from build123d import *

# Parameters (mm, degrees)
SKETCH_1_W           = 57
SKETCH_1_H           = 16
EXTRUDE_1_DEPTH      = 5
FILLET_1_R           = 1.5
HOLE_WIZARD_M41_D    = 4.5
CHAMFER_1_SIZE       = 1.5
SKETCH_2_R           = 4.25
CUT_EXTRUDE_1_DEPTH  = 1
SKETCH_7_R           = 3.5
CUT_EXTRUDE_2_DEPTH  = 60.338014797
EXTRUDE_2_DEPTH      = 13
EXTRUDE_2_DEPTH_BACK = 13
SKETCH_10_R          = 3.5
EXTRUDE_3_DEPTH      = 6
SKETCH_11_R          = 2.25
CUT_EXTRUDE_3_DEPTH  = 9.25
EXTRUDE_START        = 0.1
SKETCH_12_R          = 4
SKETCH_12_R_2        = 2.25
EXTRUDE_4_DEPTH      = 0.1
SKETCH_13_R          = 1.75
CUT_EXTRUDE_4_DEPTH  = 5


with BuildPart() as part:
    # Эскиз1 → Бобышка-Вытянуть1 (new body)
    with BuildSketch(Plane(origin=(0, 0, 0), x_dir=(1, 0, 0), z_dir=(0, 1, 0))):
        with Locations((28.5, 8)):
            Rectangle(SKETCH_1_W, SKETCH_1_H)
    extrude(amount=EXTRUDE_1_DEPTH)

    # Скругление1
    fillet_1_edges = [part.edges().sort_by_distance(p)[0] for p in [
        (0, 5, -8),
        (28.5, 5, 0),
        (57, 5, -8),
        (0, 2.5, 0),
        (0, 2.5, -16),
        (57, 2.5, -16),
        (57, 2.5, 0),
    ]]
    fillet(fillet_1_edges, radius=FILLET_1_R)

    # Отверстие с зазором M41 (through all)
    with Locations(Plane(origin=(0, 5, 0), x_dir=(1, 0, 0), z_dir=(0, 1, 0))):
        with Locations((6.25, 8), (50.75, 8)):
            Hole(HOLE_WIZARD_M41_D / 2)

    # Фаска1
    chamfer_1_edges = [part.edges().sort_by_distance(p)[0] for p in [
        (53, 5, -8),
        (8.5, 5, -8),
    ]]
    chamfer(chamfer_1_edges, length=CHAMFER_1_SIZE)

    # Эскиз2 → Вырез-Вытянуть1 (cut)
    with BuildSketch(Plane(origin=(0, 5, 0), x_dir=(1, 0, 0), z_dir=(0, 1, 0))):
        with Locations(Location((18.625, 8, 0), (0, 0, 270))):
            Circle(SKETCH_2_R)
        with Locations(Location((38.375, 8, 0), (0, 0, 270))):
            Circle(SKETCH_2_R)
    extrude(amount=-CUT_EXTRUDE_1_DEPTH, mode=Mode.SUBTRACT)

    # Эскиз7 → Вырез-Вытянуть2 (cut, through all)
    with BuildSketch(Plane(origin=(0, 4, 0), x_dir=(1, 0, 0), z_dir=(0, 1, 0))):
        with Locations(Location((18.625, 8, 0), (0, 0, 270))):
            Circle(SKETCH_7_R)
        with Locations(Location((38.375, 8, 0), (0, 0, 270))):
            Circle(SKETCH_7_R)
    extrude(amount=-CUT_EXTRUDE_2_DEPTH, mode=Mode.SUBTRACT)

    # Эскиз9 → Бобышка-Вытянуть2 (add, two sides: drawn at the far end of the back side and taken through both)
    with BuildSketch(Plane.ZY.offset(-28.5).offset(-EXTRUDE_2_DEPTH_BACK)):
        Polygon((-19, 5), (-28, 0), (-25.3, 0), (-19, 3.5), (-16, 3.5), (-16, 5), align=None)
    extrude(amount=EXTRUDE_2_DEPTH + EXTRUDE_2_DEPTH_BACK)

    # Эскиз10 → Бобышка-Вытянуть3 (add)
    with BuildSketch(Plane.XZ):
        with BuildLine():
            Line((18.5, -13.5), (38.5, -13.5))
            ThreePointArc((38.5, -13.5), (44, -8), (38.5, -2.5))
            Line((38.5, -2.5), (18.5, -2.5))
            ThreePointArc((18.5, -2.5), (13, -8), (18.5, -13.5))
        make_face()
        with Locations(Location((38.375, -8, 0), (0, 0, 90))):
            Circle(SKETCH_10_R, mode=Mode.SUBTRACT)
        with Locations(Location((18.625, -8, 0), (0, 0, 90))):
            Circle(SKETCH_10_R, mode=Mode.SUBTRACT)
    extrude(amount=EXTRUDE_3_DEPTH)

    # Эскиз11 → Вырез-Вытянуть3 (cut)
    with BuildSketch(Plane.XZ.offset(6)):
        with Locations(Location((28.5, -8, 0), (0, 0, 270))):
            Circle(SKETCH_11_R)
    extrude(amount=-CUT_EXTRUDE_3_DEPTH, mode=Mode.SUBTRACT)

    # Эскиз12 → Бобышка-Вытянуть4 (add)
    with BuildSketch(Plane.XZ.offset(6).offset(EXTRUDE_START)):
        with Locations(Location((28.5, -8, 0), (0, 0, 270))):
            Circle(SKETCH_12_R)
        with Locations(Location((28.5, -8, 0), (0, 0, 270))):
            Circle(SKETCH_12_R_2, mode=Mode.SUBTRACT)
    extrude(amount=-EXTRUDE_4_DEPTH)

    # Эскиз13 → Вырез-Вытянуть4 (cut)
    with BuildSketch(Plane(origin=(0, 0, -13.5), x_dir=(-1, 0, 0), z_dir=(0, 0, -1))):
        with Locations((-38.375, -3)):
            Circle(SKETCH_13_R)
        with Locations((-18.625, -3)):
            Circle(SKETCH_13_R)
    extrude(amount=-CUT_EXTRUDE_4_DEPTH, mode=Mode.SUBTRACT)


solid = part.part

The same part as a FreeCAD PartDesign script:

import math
import FreeCAD as App
import Part
import Sketcher
from FreeCAD import Vector


def edges_at(feature, points):
    """Names of the edges that pass closest to the given points."""
    edges = feature.Shape.Edges
    near = lambda p: min(range(len(edges)), key=lambda i: edges[i].distToShape(Part.Vertex(*p))[0])
    return sorted({f"Edge{near(p) + 1}" for p in points})


def add_polygon(sketch, points):
    """Adds a closed chain of lines whose ends are joined by coincident constraints."""
    first, n = sketch.GeometryCount, len(points)
    for a, b in zip(points, points[1:] + points[:1]):
        sketch.addGeometry(Part.LineSegment(App.Vector(*a, 0), App.Vector(*b, 0)), False)
    for i in range(n):
        sketch.addConstraint(Sketcher.Constraint("Coincident", first + i, 2, first + (i + 1) % n, 1))

doc = App.newDocument("Part")
params = doc.addObject("Spreadsheet::Sheet", "Params")
for row, (alias, value) in enumerate([
    ("sketch1_width", "57 mm"),
    ("sketch1_height", "16 mm"),
    ("pad1_length", "5 mm"),
    ("fillet_radius", "1.5 mm"),
    ("sketch2_diameter", "4.5 mm"),
    ("hole_diameter", "4.5 mm"),
    ("chamfer_size", "1.5 mm"),
    ("sketch3_diameter", "8.5 mm"),
    ("pocket1_length", "1 mm"),
    ("sketch4_diameter", "7 mm"),
    ("sketch5_height", "3 mm"),
    ("sketch5_width", "1.5 mm"),
    ("sketch5_height2", "2.7 mm"),
    ("pad2_length", "13 mm"),
    ("pad2_length2", "13 mm"),
    ("sketch6_diameter", "7 mm"),
    ("sketch6_radius", "5.5 mm"),
    ("sketch6_width", "20 mm"),
    ("pad3_length", "6 mm"),
    ("sketch7_diameter", "4.5 mm"),
    ("pocket3_length", "9.25 mm"),
    ("sketch8_diameter", "8 mm"),
    ("sketch8_diameter2", "4.5 mm"),
    ("pad4_length", "0.1 mm"),
    ("sketch9_diameter", "3.5 mm"),
    ("pocket4_length", "5 mm"),
], start=1):
    params.set(f"A{row}", alias)
    params.set(f"B{row}", "=" + value)
    params.setAlias(f"B{row}", alias)

body = doc.addObject("PartDesign::Body", "Body")

# Sketch on XZ plane
sketch1 = doc.addObject("Sketcher::SketchObject", "Sketch")
body.addObject(sketch1)
sketch1.AttachmentSupport = (doc.XZ_Plane, [""])
sketch1.MapMode = "FlatFace"
add_polygon(sketch1, [(0, -16), (0, 0), (57, 0), (57, -16)])  # lines 0-3
sketch1.addConstraint([
    Sketcher.Constraint("Vertical", 0),
    Sketcher.Constraint("Horizontal", 1),
    Sketcher.Constraint("Vertical", 2),
    Sketcher.Constraint("Horizontal", 3),
    Sketcher.Constraint("Coincident", 0, 2, -1, 1),
    Sketcher.Constraint("DistanceX", 1, 1, 1, 2, 57.0),
    Sketcher.Constraint("DistanceY", 0, 1, 0, 2, 16.0),
])
sketch1.setExpression("Constraints[9]", "Params.sketch1_width")
sketch1.setExpression("Constraints[10]", "Params.sketch1_height")
pad1 = doc.addObject("PartDesign::Pad", "Pad")
body.addObject(pad1)
pad1.Profile = sketch1
pad1.setExpression("Length", "Params.pad1_length")
pad1.Reversed = True
doc.recompute()

fillet = doc.addObject("PartDesign::Fillet", "Fillet")
body.addObject(fillet)
fillet.Base = (pad1, edges_at(pad1, [
    (0, 5, -8),
    (28.5, 5, 0),
    (57, 5, -8),
    (0, 2.5, 0),
    (0, 2.5, -16),
    (57, 2.5, -16),
    (57, 2.5, 0),
]))
fillet.setExpression("Radius", "Params.fillet_radius")

# Sketch on XZ plane
sketch2 = doc.addObject("Sketcher::SketchObject", "Sketch001")
body.addObject(sketch2)
sketch2.AttachmentSupport = (doc.XZ_Plane, [""])
sketch2.MapMode = "FlatFace"
sketch2.AttachmentOffset = App.Placement(Vector(0, 0, -5), App.Rotation())
sketch2.addGeometry([
    Part.Circle(Vector(6.2, -8, 0), Vector(0, 0, 1), 2.2),
    Part.Circle(Vector(50.8, -8, 0), Vector(0, 0, 1), 2.2),
], False)
sketch2.addConstraint([
    Sketcher.Constraint("Equal", 0, 1),
    Sketcher.Constraint("Horizontal", 0, 3, 1, 3),
    Sketcher.Constraint("Diameter", 0, 4.5),
    Sketcher.Constraint("DistanceY", 0, 3, -1, 1, 8.0),
    Sketcher.Constraint("DistanceX", 0, 3, 1, 3, 44.5),
    Sketcher.Constraint("DistanceX", -1, 1, 0, 3, 6.25),
])
sketch2.setExpression("Constraints[2]", "Params.sketch2_diameter")
doc.recompute()
hole = doc.addObject("PartDesign::Hole", "Hole")
body.addObject(hole)
hole.Profile = sketch2
hole.ThreadType = "None"
hole.setExpression("Diameter", "Params.hole_diameter")
hole.DepthType = "ThroughAll"
hole.Reversed = True
doc.recompute()

chamfer = doc.addObject("PartDesign::Chamfer", "Chamfer")
body.addObject(chamfer)
chamfer.Base = (hole, edges_at(hole, [(53, 5, -8), (8.5, 5, -8)]))
chamfer.setExpression("Size", "Params.chamfer_size")

# Sketch on XZ plane
sketch3 = doc.addObject("Sketcher::SketchObject", "Sketch002")
body.addObject(sketch3)
sketch3.AttachmentSupport = (doc.XZ_Plane, [""])
sketch3.MapMode = "FlatFace"
sketch3.AttachmentOffset = App.Placement(Vector(0, 0, -5), App.Rotation())
sketch3.addGeometry([
    Part.Circle(Vector(18.6, -8, 0), Vector(0, 0, 1), 4.2),
    Part.Circle(Vector(38.4, -8, 0), Vector(0, 0, 1), 4.2),
], False)
sketch3.addConstraint([
    Sketcher.Constraint("Equal", 0, 1),
    Sketcher.Constraint("Horizontal", 0, 3, 1, 3),
    Sketcher.Constraint("Diameter", 0, 8.5),
    Sketcher.Constraint("DistanceY", 0, 3, -1, 1, 8.0),
    Sketcher.Constraint("DistanceX", 0, 3, 1, 3, 19.75),
    Sketcher.Constraint("DistanceX", -1, 1, 0, 3, 18.625),
])
sketch3.setExpression("Constraints[2]", "Params.sketch3_diameter")
pocket1 = doc.addObject("PartDesign::Pocket", "Pocket")
body.addObject(pocket1)
pocket1.Profile = sketch3
pocket1.setExpression("Length", "Params.pocket1_length")
pocket1.Reversed = True

# Sketch on XZ plane
sketch4 = doc.addObject("Sketcher::SketchObject", "Sketch003")
body.addObject(sketch4)
sketch4.AttachmentSupport = (doc.XZ_Plane, [""])
sketch4.MapMode = "FlatFace"
sketch4.AttachmentOffset = App.Placement(Vector(0, 0, -4), App.Rotation())
sketch4.addGeometry([
    Part.Circle(Vector(18.6, -8, 0), Vector(0, 0, 1), 3.5),
    Part.Circle(Vector(38.4, -8, 0), Vector(0, 0, 1), 3.5),
], False)
sketch4.addConstraint([
    Sketcher.Constraint("Equal", 0, 1),
    Sketcher.Constraint("Horizontal", 0, 3, 1, 3),
    Sketcher.Constraint("Diameter", 0, 7.0),
    Sketcher.Constraint("DistanceY", 0, 3, -1, 1, 8.0),
    Sketcher.Constraint("DistanceX", 0, 3, 1, 3, 19.75),
    Sketcher.Constraint("DistanceX", -1, 1, 0, 3, 18.625),
])
sketch4.setExpression("Constraints[2]", "Params.sketch4_diameter")
pocket2 = doc.addObject("PartDesign::Pocket", "Pocket001")
body.addObject(pocket2)
pocket2.Profile = sketch4
pocket2.Type = "ThroughAll"
pocket2.Reversed = True

# Sketch on YZ plane
sketch5 = doc.addObject("Sketcher::SketchObject", "Sketch004")
body.addObject(sketch5)
sketch5.AttachmentSupport = (doc.YZ_Plane, [""])
sketch5.MapMode = "FlatFace"
sketch5.AttachmentOffset = App.Placement(Vector(0, 0, 28.5), App.Rotation())
add_polygon(sketch5, [(5, -19), (0, -28), (0, -25.3), (3.5, -19), (3.5, -16), (5, -16)])  # lines 0-5
sketch5.addConstraint([
    Sketcher.Constraint("Vertical", 1),
    Sketcher.Constraint("Vertical", 3),
    Sketcher.Constraint("Horizontal", 4),
    Sketcher.Constraint("Vertical", 5),
    Sketcher.Constraint("PointOnObject", 0, 2, -2),
    Sketcher.Constraint("Parallel", 0, 2),
    Sketcher.Constraint("Horizontal", 2, 2, 5, 2),
    Sketcher.Constraint("DistanceY", 3, 1, 3, 2, 3.0),
    Sketcher.Constraint("DistanceX", 4, 1, 4, 2, 1.5),
    Sketcher.Constraint("DistanceY", 1, 1, 1, 2, 2.7),
    Sketcher.Constraint("DistanceY", 0, 2, -1, 1, 28.0),
    Sketcher.Constraint("DistanceY", 2, 2, -1, 1, 19.0),
])
sketch5.setExpression("Constraints[13]", "Params.sketch5_height")
sketch5.setExpression("Constraints[14]", "Params.sketch5_width")
sketch5.setExpression("Constraints[15]", "Params.sketch5_height2")
pad2 = doc.addObject("PartDesign::Pad", "Pad001")
body.addObject(pad2)
pad2.Profile = sketch5
pad2.Type = "TwoLengths"
pad2.setExpression("Length", "Params.pad2_length")
pad2.setExpression("Length2", "Params.pad2_length2")
pad2.Reversed = True

# Sketch on XZ plane
sketch6 = doc.addObject("Sketcher::SketchObject", "Sketch005")
body.addObject(sketch6)
sketch6.AttachmentSupport = (doc.XZ_Plane, [""])
sketch6.MapMode = "FlatFace"
sketch6.addGeometry([
    Part.LineSegment(Vector(18.5, -13.5, 0), Vector(38.5, -13.5, 0)),  # 0
    Part.ArcOfCircle(Part.Circle(Vector(38.5, -8, 0), Vector(0, 0, 1), 5.5), math.radians(-90), math.radians(90)),  # 1
    Part.LineSegment(Vector(38.5, -2.5, 0), Vector(18.5, -2.5, 0)),  # 2
    Part.ArcOfCircle(Part.Circle(Vector(18.5, -8, 0), Vector(0, 0, 1), 5.5), math.radians(90), math.radians(270)),  # 3
    Part.Circle(Vector(18.6, -8, 0), Vector(0, 0, 1), 3.5),  # 4
    Part.Circle(Vector(38.4, -8, 0), Vector(0, 0, 1), 3.5),  # 5
], False)
sketch6.addConstraint([
    Sketcher.Constraint("Tangent", 0, 2, 1, 1),
    Sketcher.Constraint("Tangent", 1, 2, 2, 1),
    Sketcher.Constraint("Tangent", 2, 2, 3, 1),
    Sketcher.Constraint("Tangent", 3, 2, 0, 1),
    Sketcher.Constraint("Horizontal", 0),
    Sketcher.Constraint("Horizontal", 2),
    Sketcher.Constraint("Equal", 4, 5),
    Sketcher.Constraint("Horizontal", 3, 3, 4, 3),
    Sketcher.Constraint("Horizontal", 4, 3, 5, 3),
    Sketcher.Constraint("Diameter", 4, 7.0),
    Sketcher.Constraint("Radius", 1, 5.5),
    Sketcher.Constraint("DistanceX", 0, 1, 0, 2, 20.0),
    Sketcher.Constraint("DistanceY", 1, 3, -1, 1, 8.0),
    Sketcher.Constraint("DistanceX", -1, 1, 1, 3, 38.5),
    Sketcher.Constraint("DistanceX", 4, 3, 5, 3, 19.75),
    Sketcher.Constraint("DistanceX", -1, 1, 4, 3, 18.625),
])
sketch6.setExpression("Constraints[9]", "Params.sketch6_diameter")
sketch6.setExpression("Constraints[10]", "Params.sketch6_radius")
sketch6.setExpression("Constraints[11]", "Params.sketch6_width")
pad3 = doc.addObject("PartDesign::Pad", "Pad002")
body.addObject(pad3)
pad3.Profile = sketch6
pad3.setExpression("Length", "Params.pad3_length")

# Sketch on XZ plane
sketch7 = doc.addObject("Sketcher::SketchObject", "Sketch006")
body.addObject(sketch7)
sketch7.AttachmentSupport = (doc.XZ_Plane, [""])
sketch7.MapMode = "FlatFace"
sketch7.AttachmentOffset = App.Placement(Vector(0, 0, 6), App.Rotation())
sketch7.addGeometry(Part.Circle(Vector(28.5, -8, 0), Vector(0, 0, 1), 2.2), False)
sketch7.addConstraint([
    Sketcher.Constraint("Diameter", 0, 4.5),
    Sketcher.Constraint("DistanceY", 0, 3, -1, 1, 8.0),
    Sketcher.Constraint("DistanceX", -1, 1, 0, 3, 28.5),
])
sketch7.setExpression("Constraints[0]", "Params.sketch7_diameter")
pocket3 = doc.addObject("PartDesign::Pocket", "Pocket002")
body.addObject(pocket3)
pocket3.Profile = sketch7
pocket3.setExpression("Length", "Params.pocket3_length")

# Sketch on XZ plane
sketch8 = doc.addObject("Sketcher::SketchObject", "Sketch007")
body.addObject(sketch8)
sketch8.AttachmentSupport = (doc.XZ_Plane, [""])
sketch8.MapMode = "FlatFace"
sketch8.AttachmentOffset = App.Placement(Vector(0, 0, 6.1), App.Rotation())
sketch8.addGeometry([
    Part.Circle(Vector(28.5, -8, 0), Vector(0, 0, 1), 4),
    Part.Circle(Vector(28.5, -8, 0), Vector(0, 0, 1), 2.2),
], False)
sketch8.addConstraint([
    Sketcher.Constraint("Coincident", 1, 3, 0, 3),
    Sketcher.Constraint("Diameter", 0, 8.0),
    Sketcher.Constraint("Diameter", 1, 4.5),
    Sketcher.Constraint("DistanceY", 0, 3, -1, 1, 8.0),
    Sketcher.Constraint("DistanceX", -1, 1, 0, 3, 28.5),
])
sketch8.setExpression("Constraints[1]", "Params.sketch8_diameter")
sketch8.setExpression("Constraints[2]", "Params.sketch8_diameter2")
pad4 = doc.addObject("PartDesign::Pad", "Pad003")
body.addObject(pad4)
pad4.Profile = sketch8
pad4.setExpression("Length", "Params.pad4_length")
pad4.Reversed = True

# Sketch on XY plane
sketch9 = doc.addObject("Sketcher::SketchObject", "Sketch008")
body.addObject(sketch9)
sketch9.AttachmentSupport = (doc.XY_Plane, [""])
sketch9.MapMode = "FlatFace"
sketch9.AttachmentOffset = App.Placement(Vector(0, 0, -13.5), App.Rotation())
sketch9.addGeometry([
    Part.Circle(Vector(38.4, -3, 0), Vector(0, 0, 1), 1.8),
    Part.Circle(Vector(18.6, -3, 0), Vector(0, 0, 1), 1.8),
], False)
sketch9.addConstraint([
    Sketcher.Constraint("Equal", 0, 1),
    Sketcher.Constraint("Horizontal", 0, 3, 1, 3),
    Sketcher.Constraint("Diameter", 0, 3.5),
    Sketcher.Constraint("DistanceY", 0, 3, -1, 1, 3.0),
    Sketcher.Constraint("DistanceX", 1, 3, 0, 3, 19.75),
    Sketcher.Constraint("DistanceX", -1, 1, 0, 3, 38.375),
])
sketch9.setExpression("Constraints[2]", "Params.sketch9_diameter")
pocket4 = doc.addObject("PartDesign::Pocket", "Pocket003")
body.addObject(pocket4)
pocket4.Profile = sketch9
pocket4.setExpression("Length", "Params.pocket4_length")
pocket4.Reversed = True

doc.recompute()
